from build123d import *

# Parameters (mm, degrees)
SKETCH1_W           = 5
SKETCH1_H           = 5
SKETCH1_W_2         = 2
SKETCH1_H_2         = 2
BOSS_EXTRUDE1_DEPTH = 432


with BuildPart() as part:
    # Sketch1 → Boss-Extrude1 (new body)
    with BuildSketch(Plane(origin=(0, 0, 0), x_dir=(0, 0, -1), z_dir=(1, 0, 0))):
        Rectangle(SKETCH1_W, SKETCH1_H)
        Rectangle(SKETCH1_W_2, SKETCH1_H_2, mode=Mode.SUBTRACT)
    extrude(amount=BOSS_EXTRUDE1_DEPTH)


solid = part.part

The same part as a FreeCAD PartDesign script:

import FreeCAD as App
import Part
import Sketcher
Q = App.Units.Quantity

doc = App.newDocument("Part")
body = doc.addObject("PartDesign::Body", "Body")

# Sketch on YZ plane
sketch1 = body.newObject("Sketcher::SketchObject", "Sketch")
sketch1.AttachmentSupport = (doc.getObject("YZ_Plane"), [""])
sketch1.MapMode = "FlatFace"
sketch1.addGeometry([
    Part.LineSegment(App.Vector(2.5, 2.5, 0), App.Vector(-2.5, 2.5, 0)),  # 0
    Part.LineSegment(App.Vector(-2.5, 2.5, 0), App.Vector(-2.5, -2.5, 0)),  # 1
    Part.LineSegment(App.Vector(-2.5, -2.5, 0), App.Vector(2.5, -2.5, 0)),  # 2
    Part.LineSegment(App.Vector(2.5, -2.5, 0), App.Vector(2.5, 2.5, 0)),  # 3
    Part.LineSegment(App.Vector(-1, -1, 0), App.Vector(-1, 1, 0)),  # 4
    Part.LineSegment(App.Vector(-1, 1, 0), App.Vector(1, 1, 0)),  # 5
    Part.LineSegment(App.Vector(1, 1, 0), App.Vector(1, -1, 0)),  # 6
    Part.LineSegment(App.Vector(1, -1, 0), App.Vector(-1, -1, 0)),  # 7
], False)
sketch1.addConstraint([
    Sketcher.Constraint("Coincident", 0, 2, 1, 1),
    Sketcher.Constraint("Coincident", 1, 2, 2, 1),
    Sketcher.Constraint("Coincident", 2, 2, 3, 1),
    Sketcher.Constraint("Coincident", 3, 2, 0, 1),
    Sketcher.Constraint("Coincident", 4, 2, 5, 1),
    Sketcher.Constraint("Coincident", 5, 2, 6, 1),
    Sketcher.Constraint("Coincident", 6, 2, 7, 1),
    Sketcher.Constraint("Coincident", 7, 2, 4, 1),
    Sketcher.Constraint("Horizontal", 0),
    Sketcher.Constraint("Vertical", 1),
    Sketcher.Constraint("Horizontal", 2),
    Sketcher.Constraint("Vertical", 3),
    Sketcher.Constraint("Vertical", 4),
    Sketcher.Constraint("Horizontal", 5),
    Sketcher.Constraint("Vertical", 6),
    Sketcher.Constraint("Horizontal", 7),
    Sketcher.Constraint("Symmetric", 0, 2, 2, 2, -1, 1),
    Sketcher.Constraint("Symmetric", 4, 2, 6, 2, -1, 1),
    Sketcher.Constraint("Equal", 2, 1),
    Sketcher.Constraint("Equal", 7, 4),
    Sketcher.Constraint("DistanceX", 0, 2, 0, 1, Q("5 mm")),
    Sketcher.Constraint("DistanceX", 5, 1, 5, 2, Q("2 mm")),
])
pad1 = body.newObject("PartDesign::Pad", "Pad")
pad1.Profile = sketch1
pad1.Length = 432

doc.recompute()
